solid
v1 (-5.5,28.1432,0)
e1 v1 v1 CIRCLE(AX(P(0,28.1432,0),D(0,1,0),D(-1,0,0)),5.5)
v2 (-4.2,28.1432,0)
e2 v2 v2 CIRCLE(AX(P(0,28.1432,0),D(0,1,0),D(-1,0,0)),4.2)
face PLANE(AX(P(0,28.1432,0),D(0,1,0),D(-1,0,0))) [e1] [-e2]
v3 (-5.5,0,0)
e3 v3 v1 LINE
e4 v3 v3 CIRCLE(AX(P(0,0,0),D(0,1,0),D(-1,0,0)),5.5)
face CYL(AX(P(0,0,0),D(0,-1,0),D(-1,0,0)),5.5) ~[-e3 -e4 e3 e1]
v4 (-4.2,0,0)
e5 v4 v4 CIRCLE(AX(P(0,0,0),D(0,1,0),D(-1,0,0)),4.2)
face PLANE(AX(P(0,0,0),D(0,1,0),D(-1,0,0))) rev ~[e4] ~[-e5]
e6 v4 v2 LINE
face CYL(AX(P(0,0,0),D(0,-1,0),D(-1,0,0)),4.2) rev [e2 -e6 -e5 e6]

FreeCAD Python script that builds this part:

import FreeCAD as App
import Part
import Sketcher

V = App.Vector
Q = App.Units.Quantity

doc = App.newDocument("Part")
body = doc.addObject("PartDesign::Body", "Body")

# Sketch on XZ plane
sketch1 = body.newObject("Sketcher::SketchObject", "Sketch")
sketch1.AttachmentSupport = (doc.getObject("XZ_Plane"), [""])
sketch1.MapMode = "FlatFace"
sketch1.addGeometry([
    Part.Circle(V(0, 0, 0), V(0, 0, 1), 5.5),
    Part.Circle(V(0, 0, 0), V(0, 0, 1), 4.2),
], False)
sketch1.addConstraint([
    Sketcher.Constraint("Coincident", 0, 3, -1, 1),
    Sketcher.Constraint("Coincident", 1, 3, -1, 1),
    Sketcher.Constraint("Diameter", 0, Q("11 mm")),
    Sketcher.Constraint("Diameter", 1, Q("8.4 mm")),
])
pad1 = body.newObject("PartDesign::Pad", "Pad")
pad1.Profile = sketch1
pad1.Length = 28.1432
pad1.Reversed = True

doc.recompute()
